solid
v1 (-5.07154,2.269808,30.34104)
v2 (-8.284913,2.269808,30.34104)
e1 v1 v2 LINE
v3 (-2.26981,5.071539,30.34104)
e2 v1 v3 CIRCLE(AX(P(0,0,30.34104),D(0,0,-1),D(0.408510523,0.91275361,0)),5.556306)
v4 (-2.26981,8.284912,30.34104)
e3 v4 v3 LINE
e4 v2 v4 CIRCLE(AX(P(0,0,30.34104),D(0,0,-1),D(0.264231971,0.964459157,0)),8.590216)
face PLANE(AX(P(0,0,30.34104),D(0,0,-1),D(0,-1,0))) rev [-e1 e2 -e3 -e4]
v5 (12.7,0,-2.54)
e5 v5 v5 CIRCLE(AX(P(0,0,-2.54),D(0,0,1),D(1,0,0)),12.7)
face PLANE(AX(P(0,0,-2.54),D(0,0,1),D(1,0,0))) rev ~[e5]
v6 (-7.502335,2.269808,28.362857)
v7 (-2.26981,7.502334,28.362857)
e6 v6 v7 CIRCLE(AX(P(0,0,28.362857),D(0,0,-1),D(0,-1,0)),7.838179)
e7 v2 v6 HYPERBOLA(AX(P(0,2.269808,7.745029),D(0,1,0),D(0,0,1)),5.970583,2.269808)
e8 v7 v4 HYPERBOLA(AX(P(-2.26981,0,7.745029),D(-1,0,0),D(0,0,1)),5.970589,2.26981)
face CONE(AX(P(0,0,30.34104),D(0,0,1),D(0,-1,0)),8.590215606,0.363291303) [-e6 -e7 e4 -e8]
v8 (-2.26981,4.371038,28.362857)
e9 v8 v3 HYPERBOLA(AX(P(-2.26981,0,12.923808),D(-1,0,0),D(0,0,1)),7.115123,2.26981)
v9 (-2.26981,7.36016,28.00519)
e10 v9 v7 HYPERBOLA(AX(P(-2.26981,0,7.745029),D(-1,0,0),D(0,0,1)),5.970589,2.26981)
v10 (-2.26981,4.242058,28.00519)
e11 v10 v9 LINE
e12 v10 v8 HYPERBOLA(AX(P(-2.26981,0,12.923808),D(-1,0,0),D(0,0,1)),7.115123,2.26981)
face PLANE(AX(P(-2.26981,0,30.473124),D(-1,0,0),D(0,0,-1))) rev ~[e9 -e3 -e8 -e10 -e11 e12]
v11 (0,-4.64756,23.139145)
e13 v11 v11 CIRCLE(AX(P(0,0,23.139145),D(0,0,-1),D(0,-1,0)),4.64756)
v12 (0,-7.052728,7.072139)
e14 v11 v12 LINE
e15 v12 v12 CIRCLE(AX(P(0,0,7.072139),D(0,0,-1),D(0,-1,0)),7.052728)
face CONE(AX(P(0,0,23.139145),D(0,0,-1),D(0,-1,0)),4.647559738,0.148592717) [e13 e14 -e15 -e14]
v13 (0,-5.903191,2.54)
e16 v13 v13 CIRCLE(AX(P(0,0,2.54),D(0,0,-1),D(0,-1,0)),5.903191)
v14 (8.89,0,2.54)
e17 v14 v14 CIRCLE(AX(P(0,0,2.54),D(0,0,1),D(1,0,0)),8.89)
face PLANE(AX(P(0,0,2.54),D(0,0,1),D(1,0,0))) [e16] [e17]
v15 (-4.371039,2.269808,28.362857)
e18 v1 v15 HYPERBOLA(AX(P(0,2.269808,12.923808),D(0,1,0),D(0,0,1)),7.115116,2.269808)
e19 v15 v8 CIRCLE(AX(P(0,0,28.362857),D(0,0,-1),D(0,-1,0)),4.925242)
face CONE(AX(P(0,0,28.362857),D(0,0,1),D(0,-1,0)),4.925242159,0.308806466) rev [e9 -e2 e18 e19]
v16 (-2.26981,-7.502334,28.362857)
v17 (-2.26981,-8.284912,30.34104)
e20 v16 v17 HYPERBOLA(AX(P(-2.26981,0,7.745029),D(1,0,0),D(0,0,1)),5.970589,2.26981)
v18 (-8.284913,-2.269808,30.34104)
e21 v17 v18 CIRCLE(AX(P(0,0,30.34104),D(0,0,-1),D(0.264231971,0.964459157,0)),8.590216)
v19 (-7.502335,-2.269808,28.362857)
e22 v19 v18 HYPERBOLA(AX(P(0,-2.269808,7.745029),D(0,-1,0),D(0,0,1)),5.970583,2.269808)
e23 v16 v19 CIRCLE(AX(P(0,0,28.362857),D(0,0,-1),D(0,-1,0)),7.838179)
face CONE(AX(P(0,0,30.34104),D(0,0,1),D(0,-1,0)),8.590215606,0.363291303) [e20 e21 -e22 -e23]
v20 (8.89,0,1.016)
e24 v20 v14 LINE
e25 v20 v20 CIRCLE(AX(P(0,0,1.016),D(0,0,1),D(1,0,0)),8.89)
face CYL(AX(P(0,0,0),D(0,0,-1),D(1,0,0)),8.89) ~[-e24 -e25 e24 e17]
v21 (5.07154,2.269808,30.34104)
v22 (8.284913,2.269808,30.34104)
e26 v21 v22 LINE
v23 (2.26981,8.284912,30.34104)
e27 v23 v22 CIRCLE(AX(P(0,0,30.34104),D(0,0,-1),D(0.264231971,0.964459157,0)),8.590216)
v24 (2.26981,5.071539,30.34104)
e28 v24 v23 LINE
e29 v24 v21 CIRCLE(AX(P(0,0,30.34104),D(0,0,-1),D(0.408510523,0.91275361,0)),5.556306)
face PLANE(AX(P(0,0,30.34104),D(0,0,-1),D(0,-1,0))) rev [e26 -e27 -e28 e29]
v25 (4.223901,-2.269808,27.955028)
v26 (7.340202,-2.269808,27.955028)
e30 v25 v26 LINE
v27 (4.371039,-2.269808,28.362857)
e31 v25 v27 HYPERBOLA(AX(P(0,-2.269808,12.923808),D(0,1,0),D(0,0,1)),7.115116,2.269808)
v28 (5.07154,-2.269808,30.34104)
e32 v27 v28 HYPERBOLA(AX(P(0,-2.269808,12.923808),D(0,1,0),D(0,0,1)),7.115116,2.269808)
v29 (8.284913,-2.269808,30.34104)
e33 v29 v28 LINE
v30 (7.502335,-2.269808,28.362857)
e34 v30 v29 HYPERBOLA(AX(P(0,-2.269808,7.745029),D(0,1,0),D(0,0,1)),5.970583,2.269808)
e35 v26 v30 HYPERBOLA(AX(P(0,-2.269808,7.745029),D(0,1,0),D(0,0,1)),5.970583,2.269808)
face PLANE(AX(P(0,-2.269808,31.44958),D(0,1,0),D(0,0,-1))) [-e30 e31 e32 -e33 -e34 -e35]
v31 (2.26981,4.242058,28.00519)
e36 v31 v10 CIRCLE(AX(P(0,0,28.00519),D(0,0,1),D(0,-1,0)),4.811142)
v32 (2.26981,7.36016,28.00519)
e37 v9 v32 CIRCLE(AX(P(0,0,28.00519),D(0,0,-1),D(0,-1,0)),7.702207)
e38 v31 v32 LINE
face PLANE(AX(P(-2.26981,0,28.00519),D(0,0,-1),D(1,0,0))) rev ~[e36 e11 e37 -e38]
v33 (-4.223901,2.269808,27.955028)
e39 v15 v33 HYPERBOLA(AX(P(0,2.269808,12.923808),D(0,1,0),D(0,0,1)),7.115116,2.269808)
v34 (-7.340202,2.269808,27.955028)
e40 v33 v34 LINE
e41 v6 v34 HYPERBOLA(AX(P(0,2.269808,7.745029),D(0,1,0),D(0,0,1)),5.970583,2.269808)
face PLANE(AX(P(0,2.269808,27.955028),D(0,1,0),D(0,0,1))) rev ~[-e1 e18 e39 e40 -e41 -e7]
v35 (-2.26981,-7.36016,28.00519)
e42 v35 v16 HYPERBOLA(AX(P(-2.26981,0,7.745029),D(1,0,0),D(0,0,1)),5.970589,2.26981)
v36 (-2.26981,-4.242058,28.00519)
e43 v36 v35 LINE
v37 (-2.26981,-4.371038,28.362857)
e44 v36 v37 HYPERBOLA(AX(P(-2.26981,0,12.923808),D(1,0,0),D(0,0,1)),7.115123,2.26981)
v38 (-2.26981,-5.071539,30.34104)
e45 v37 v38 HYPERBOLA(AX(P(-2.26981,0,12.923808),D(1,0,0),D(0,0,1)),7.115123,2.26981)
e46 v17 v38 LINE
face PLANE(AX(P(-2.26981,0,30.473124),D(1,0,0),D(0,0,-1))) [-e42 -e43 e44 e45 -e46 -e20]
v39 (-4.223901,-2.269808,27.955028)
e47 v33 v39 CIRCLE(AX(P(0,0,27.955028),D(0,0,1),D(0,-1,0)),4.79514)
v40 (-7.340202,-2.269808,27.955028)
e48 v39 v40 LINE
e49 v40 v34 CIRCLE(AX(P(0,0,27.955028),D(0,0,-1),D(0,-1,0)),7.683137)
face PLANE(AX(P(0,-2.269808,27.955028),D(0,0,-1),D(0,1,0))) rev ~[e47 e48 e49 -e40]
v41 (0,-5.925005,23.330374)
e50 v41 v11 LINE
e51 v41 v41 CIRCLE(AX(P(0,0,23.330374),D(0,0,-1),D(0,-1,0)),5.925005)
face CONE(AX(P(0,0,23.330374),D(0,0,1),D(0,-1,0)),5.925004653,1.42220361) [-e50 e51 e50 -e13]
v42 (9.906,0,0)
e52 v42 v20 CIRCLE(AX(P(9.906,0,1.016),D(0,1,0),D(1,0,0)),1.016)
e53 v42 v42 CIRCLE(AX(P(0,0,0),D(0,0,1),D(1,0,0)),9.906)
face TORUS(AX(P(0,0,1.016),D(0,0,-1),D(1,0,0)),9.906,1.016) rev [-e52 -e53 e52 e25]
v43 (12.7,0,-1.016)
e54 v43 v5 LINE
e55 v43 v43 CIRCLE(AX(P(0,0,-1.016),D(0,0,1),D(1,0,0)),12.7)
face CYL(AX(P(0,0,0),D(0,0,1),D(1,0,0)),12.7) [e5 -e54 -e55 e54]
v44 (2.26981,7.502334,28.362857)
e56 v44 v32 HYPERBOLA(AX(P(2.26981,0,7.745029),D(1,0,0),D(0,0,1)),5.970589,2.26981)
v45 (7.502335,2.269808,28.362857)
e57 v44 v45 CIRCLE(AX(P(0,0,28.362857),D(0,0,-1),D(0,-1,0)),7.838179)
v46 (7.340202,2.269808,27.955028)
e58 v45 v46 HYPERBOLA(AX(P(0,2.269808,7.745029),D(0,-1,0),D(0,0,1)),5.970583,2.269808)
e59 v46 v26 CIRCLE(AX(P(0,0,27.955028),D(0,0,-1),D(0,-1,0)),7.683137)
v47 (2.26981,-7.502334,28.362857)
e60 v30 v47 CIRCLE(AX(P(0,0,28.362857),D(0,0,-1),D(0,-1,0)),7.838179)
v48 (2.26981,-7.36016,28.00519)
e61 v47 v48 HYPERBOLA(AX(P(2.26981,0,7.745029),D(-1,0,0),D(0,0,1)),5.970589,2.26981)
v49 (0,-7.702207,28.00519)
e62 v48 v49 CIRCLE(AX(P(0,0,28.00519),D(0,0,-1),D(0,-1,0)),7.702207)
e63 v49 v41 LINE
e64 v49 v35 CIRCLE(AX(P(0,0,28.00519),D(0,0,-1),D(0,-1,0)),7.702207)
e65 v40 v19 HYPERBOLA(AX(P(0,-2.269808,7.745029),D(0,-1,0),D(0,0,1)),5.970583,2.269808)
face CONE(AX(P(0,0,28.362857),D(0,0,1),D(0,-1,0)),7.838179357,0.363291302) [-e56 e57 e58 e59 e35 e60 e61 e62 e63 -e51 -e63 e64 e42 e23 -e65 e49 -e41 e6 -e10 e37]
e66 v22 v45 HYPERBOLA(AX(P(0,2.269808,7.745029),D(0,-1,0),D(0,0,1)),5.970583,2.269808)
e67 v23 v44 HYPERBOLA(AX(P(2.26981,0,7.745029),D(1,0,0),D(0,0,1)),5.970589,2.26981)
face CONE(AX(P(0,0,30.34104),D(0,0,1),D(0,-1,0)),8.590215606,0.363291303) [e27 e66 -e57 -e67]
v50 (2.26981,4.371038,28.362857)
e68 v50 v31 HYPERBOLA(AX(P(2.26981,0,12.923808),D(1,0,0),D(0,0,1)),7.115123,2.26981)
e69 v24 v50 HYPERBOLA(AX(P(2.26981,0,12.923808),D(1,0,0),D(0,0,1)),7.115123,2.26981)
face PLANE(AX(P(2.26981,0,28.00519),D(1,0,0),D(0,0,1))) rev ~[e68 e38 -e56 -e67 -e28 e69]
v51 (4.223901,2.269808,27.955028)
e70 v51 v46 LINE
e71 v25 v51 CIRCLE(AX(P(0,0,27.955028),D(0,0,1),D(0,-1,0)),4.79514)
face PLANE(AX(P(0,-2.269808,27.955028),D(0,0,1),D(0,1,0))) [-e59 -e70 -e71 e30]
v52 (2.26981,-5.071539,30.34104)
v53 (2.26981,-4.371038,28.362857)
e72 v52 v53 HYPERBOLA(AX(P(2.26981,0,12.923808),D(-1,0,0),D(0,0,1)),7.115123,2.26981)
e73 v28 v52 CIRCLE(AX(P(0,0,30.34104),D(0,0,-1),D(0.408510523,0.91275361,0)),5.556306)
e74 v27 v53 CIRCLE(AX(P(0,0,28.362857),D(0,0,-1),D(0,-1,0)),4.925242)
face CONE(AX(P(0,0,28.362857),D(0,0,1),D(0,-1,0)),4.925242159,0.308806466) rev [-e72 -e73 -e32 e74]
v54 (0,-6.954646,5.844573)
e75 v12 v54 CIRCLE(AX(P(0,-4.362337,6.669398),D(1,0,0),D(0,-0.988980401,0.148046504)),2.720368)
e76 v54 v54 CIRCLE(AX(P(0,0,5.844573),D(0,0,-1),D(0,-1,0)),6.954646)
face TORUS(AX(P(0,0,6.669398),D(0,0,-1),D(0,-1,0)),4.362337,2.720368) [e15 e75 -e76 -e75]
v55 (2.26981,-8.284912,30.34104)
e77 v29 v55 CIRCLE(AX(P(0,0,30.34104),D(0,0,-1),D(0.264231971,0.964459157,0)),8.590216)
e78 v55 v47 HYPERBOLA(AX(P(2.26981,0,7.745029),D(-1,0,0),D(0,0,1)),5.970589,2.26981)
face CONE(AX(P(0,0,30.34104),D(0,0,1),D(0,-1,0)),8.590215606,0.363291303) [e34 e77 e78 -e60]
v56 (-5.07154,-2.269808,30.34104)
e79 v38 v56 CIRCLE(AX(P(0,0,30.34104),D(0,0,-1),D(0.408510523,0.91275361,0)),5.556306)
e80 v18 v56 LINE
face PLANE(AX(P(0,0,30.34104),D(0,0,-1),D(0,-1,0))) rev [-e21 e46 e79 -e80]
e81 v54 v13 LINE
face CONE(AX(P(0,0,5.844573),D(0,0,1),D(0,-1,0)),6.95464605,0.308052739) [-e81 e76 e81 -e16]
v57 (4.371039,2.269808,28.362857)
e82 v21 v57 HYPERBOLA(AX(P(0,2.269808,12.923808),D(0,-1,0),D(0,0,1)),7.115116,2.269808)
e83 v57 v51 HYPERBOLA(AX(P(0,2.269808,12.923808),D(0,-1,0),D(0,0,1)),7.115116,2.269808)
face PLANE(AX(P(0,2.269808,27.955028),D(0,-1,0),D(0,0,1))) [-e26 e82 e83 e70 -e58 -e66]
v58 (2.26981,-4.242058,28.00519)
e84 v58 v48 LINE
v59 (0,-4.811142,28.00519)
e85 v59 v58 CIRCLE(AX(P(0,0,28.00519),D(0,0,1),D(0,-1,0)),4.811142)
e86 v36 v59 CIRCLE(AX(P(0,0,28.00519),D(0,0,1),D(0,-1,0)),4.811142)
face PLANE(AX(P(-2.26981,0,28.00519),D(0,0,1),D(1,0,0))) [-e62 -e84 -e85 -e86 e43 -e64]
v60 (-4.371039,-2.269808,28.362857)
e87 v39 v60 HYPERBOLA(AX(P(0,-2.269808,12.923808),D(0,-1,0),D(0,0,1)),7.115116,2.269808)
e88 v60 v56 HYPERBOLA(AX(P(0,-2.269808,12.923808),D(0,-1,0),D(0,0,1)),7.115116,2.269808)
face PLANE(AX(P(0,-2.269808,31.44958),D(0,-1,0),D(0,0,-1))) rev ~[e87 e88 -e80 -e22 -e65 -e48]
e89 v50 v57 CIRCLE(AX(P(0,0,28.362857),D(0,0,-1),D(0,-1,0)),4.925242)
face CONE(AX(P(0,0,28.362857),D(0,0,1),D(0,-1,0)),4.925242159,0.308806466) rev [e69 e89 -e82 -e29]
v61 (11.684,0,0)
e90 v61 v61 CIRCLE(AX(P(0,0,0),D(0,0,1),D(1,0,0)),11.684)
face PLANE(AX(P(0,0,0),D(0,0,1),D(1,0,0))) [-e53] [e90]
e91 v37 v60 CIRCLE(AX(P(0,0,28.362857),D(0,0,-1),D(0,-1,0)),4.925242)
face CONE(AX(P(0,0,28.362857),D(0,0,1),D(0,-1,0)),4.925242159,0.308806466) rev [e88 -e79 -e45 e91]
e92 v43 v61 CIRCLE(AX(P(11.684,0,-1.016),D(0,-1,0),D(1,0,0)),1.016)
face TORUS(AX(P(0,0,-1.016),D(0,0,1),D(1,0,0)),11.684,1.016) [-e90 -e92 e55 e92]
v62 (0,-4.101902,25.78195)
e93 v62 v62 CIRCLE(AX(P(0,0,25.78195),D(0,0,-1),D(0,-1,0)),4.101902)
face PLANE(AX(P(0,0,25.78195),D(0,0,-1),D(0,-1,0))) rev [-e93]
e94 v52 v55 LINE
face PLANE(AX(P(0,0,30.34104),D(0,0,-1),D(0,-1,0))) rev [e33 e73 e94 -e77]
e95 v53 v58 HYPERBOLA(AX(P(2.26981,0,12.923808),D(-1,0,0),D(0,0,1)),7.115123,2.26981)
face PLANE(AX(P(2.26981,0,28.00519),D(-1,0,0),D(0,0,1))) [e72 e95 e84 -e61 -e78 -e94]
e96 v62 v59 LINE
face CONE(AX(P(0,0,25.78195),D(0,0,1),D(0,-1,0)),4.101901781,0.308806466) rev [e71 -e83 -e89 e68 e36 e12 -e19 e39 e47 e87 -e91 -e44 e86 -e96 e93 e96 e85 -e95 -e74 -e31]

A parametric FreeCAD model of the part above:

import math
import FreeCAD as App
import Part
import Sketcher
Q = App.Units.Quantity


def edges_at(feature, points):
    """Names of the edges that pass closest to the given points."""
    edges = feature.Shape.Edges
    near = lambda p: min(range(len(edges)), key=lambda i: edges[i].distToShape(Part.Vertex(*p))[0])
    return sorted({f"Edge{near(p) + 1}" for p in points})


def add_polygon(sketch, points):
    """Adds a closed chain of lines whose ends are joined by coincident constraints."""
    first, n = sketch.GeometryCount, len(points)
    for a, b in zip(points, points[1:] + points[:1]):
        sketch.addGeometry(Part.LineSegment(App.Vector(*a, 0), App.Vector(*b, 0)), False)
    for i in range(n):
        sketch.addConstraint(Sketcher.Constraint("Coincident", first + i, 2, first + (i + 1) % n, 1))

doc = App.newDocument("Part")
params = doc.addObject("Spreadsheet::Sheet", "Params")
for row, (alias, value) in enumerate([
    ("sketch1_diameter", "1 in"),
    ("pad1_length", "0.1 in"),
    ("sketch2_diameter", "0.7 in"),
    ("pad2_length", "0.1 in"),
    ("fillet_radius", "0.04 in"),
    ("revolution_angle", "360 deg"),
], start=1):
    params.set(f"A{row}", alias)
    params.set(f"B{row}", "=" + value)
    params.setAlias(f"B{row}", alias)

body = doc.addObject("PartDesign::Body", "Body")

sketch1 = body.newObject("Sketcher::SketchObject", "Sketch")
sketch1.AttachmentSupport = (doc.getObject("XY_Plane"), [""])
sketch1.MapMode = "FlatFace"
sketch1.addGeometry(Part.Circle(App.Vector(0, 0, 0), App.Vector(0, 0, 1), 13), False)
sketch1.addConstraint([
    Sketcher.Constraint("Coincident", 0, 3, -1, 1),
    Sketcher.Constraint("Diameter", 0, Q("1 in")),
])
sketch1.setExpression("Constraints[1]", "Params.sketch1_diameter")
pad1 = body.newObject("PartDesign::Pad", "Pad")
pad1.Profile = sketch1
pad1.setExpression("Length", "Params.pad1_length")
pad1.Reversed = True

sketch2 = body.newObject("Sketcher::SketchObject", "Sketch001")
sketch2.AttachmentSupport = (doc.getObject("XY_Plane"), [""])
sketch2.MapMode = "FlatFace"
sketch2.addGeometry(Part.Circle(App.Vector(0, 0, 0), App.Vector(0, 0, 1), 9), False)
sketch2.addConstraint([
    Sketcher.Constraint("Coincident", 0, 3, -1, 1),
    Sketcher.Constraint("Diameter", 0, Q("0.7 in")),
])
sketch2.setExpression("Constraints[1]", "Params.sketch2_diameter")
pad2 = body.newObject("PartDesign::Pad", "Pad001")
pad2.Profile = sketch2
pad2.setExpression("Length", "Params.pad2_length")
doc.recompute()

fillet = body.newObject("PartDesign::Fillet", "Fillet")
fillet.Base = (pad2, edges_at(pad2, [(-8.89, 0, 0), (-12.7, 0, 0)]))
fillet.setExpression("Radius", "Params.fillet_radius")

sketch3 = body.newObject("Sketcher::SketchObject", "Sketch002")
sketch3.AttachmentSupport = (doc.getObject("YZ_Plane"), [""])
sketch3.MapMode = "FlatFace"
sketch3.addGeometry([
    Part.ArcOfCircle(Part.Circle(App.Vector(-4.362337, 6.669398, 0), App.Vector(0, 0, 1), 2.720368), math.radians(171.486264), math.radians(197.650122)),
    Part.LineSegment(App.Vector(-6.954646, 5.844573, 0), App.Vector(-5.848354, 2.367655, 0)),
    Part.LineSegment(App.Vector(-5.848354, 2.367655, 0), App.Vector(0, 2.367655, 0)),
    Part.LineSegment(App.Vector(0, 2.367655, 0), App.Vector(0, 25.78195, 0)),
    Part.LineSegment(App.Vector(0, 25.78195, 0), App.Vector(-4.101902, 25.78195, 0)),
    Part.LineSegment(App.Vector(-4.101902, 25.78195, 0), App.Vector(-4.925242, 28.362857, 0)),
    Part.LineSegment(App.Vector(-4.925242, 28.362857, 0), App.Vector(-5.556306, 30.34104, 0)),
    Part.LineSegment(App.Vector(-5.556306, 30.34104, 0), App.Vector(-8.590216, 30.34104, 0)),
    Part.LineSegment(App.Vector(-8.590216, 30.34104, 0), App.Vector(-7.838179, 28.362857, 0)),
    Part.LineSegment(App.Vector(-7.838179, 28.362857, 0), App.Vector(-5.925005, 23.330374, 0)),
    Part.LineSegment(App.Vector(-5.925005, 23.330374, 0), App.Vector(-4.64756, 23.139145, 0)),
    Part.LineSegment(App.Vector(-4.64756, 23.139145, 0), App.Vector(-7.052728, 7.072139, 0)),
], False)
sketch3.addConstraint([
    Sketcher.Constraint("Coincident", 0, 2, 1, 1),
    Sketcher.Constraint("Coincident", 1, 2, 2, 1),
    Sketcher.Constraint("Coincident", 2, 2, 3, 1),
    Sketcher.Constraint("Coincident", 3, 2, 4, 1),
    Sketcher.Constraint("Coincident", 4, 2, 5, 1),
    Sketcher.Constraint("Coincident", 5, 2, 6, 1),
    Sketcher.Constraint("Coincident", 6, 2, 7, 1),
    Sketcher.Constraint("Coincident", 7, 2, 8, 1),
    Sketcher.Constraint("Coincident", 8, 2, 9, 1),
    Sketcher.Constraint("Coincident", 9, 2, 10, 1),
    Sketcher.Constraint("Coincident", 10, 2, 11, 1),
    Sketcher.Constraint("Coincident", 11, 2, 0, 1),
    Sketcher.Constraint("Horizontal", 2),
    Sketcher.Constraint("Vertical", 3),
    Sketcher.Constraint("Horizontal", 4),
    Sketcher.Constraint("Horizontal", 7),
    Sketcher.Constraint("PointOnObject", 2, 2, -2),
    Sketcher.Constraint("Radius", 0, Q("2.720368 mm")),
    Sketcher.Constraint("DistanceX", 4, 2, 4, 1, Q("4.101902 mm")),
    Sketcher.Constraint("DistanceX", 7, 2, 7, 1, Q("3.033909 mm")),
    Sketcher.Constraint("DistanceY", -1, 1, 0, 3, Q("6.669398 mm")),
    Sketcher.Constraint("DistanceX", 9, 2, 6, 2, Q("0.368698 mm")),
    Sketcher.Constraint("Distance", 8, Q("2.11631 mm")),
    Sketcher.Constraint("Distance", 10, Q("1.291679 mm")),
    Sketcher.Constraint("Distance", 11, Q("16.246031 mm")),
    Sketcher.Constraint("DistanceX", 2, 1, 2, 2, Q("5.848354 mm")),
    Sketcher.Constraint("DistanceY", 3, 1, 3, 2, Q("23.414295 mm")),
    Sketcher.Constraint("DistanceY", -1, 1, 3, 2, Q("25.78195 mm")),
    Sketcher.Constraint("DistanceY", -1, 1, 6, 2, Q("30.34104 mm")),
    Sketcher.Constraint("DistanceX", 8, 2, -1, 1, Q("7.838179 mm")),
    Sketcher.Constraint("DistanceX", 10, 2, -1, 1, Q("4.64756 mm")),
    Sketcher.Constraint("DistanceY", -1, 1, 11, 2, Q("7.072139 mm")),
    Sketcher.Constraint("DistanceX", 0, 2, 0, 3, Q("2.592309 mm")),
    Sketcher.Constraint("DistanceX", 0, 2, 1, 2, Q("1.106292 mm")),
    Sketcher.Constraint("DistanceX", 5, 2, 4, 2, Q("0.82334 mm")),
    Sketcher.Constraint("DistanceY", 0, 3, 5, 2, Q("21.693459 mm")),
    Sketcher.Constraint("DistanceX", 6, 2, 0, 3, Q("1.193969 mm")),
])
revolution = body.newObject("PartDesign::Revolution", "Revolution")
revolution.Profile = sketch3
revolution.ReferenceAxis = (sketch3, ["V_Axis"])
revolution.setExpression("Angle", "Params.revolution_angle")

sketch4 = body.newObject("Sketcher::SketchObject", "Sketch003")
sketch4.AttachmentSupport = (doc.getObject("XZ_Plane"), [""])
sketch4.MapMode = "FlatFace"
add_polygon(sketch4, [(-2.3, 28), (2.3, 28), (2.3, 30.5), (-2.3, 30.5)])
sketch4.addConstraint([
    Sketcher.Constraint("Horizontal", 0),
    Sketcher.Constraint("Vertical", 1),
    Sketcher.Constraint("Horizontal", 2),
    Sketcher.Constraint("Vertical", 3),
    Sketcher.Constraint("DistanceX", 0, 1, 0, 2, Q("4.539619 mm")),
    Sketcher.Constraint("DistanceY", 1, 1, 1, 2, Q("2.467934 mm")),
    Sketcher.Constraint("DistanceX", -1, 1, 0, 2, Q("2.26981 mm")),
    Sketcher.Constraint("DistanceY", -1, 1, 0, 2, Q("28.00519 mm")),
])
pocket1 = body.newObject("PartDesign::Pocket", "Pocket")
pocket1.Profile = sketch4
pocket1.Type = "ThroughAll"
pocket1.Midplane = True

sketch5 = body.newObject("Sketcher::SketchObject", "Sketch004")
sketch5.AttachmentSupport = (doc.getObject("YZ_Plane"), [""])
sketch5.MapMode = "FlatFace"
add_polygon(sketch5, [(-2.3, 28), (2.3, 28), (2.3, 31.4), (-2.3, 31.4)])
sketch5.addConstraint([
    Sketcher.Constraint("Horizontal", 0),
    Sketcher.Constraint("Vertical", 1),
    Sketcher.Constraint("Horizontal", 2),
    Sketcher.Constraint("Vertical", 3),
    Sketcher.Constraint("DistanceY", 1, 1, 1, 2, Q("3.494552 mm")),
    Sketcher.Constraint("DistanceX", 0, 1, 0, 2, Q("4.539615 mm")),
    Sketcher.Constraint("DistanceY", -1, 1, 1, 2, Q("31.44958 mm")),
    Sketcher.Constraint("DistanceX", -1, 1, 0, 2, Q("2.269808 mm")),
])
pocket2 = body.newObject("PartDesign::Pocket", "Pocket001")
pocket2.Profile = sketch5
pocket2.Type = "ThroughAll"
pocket2.Midplane = True

doc.recompute()
